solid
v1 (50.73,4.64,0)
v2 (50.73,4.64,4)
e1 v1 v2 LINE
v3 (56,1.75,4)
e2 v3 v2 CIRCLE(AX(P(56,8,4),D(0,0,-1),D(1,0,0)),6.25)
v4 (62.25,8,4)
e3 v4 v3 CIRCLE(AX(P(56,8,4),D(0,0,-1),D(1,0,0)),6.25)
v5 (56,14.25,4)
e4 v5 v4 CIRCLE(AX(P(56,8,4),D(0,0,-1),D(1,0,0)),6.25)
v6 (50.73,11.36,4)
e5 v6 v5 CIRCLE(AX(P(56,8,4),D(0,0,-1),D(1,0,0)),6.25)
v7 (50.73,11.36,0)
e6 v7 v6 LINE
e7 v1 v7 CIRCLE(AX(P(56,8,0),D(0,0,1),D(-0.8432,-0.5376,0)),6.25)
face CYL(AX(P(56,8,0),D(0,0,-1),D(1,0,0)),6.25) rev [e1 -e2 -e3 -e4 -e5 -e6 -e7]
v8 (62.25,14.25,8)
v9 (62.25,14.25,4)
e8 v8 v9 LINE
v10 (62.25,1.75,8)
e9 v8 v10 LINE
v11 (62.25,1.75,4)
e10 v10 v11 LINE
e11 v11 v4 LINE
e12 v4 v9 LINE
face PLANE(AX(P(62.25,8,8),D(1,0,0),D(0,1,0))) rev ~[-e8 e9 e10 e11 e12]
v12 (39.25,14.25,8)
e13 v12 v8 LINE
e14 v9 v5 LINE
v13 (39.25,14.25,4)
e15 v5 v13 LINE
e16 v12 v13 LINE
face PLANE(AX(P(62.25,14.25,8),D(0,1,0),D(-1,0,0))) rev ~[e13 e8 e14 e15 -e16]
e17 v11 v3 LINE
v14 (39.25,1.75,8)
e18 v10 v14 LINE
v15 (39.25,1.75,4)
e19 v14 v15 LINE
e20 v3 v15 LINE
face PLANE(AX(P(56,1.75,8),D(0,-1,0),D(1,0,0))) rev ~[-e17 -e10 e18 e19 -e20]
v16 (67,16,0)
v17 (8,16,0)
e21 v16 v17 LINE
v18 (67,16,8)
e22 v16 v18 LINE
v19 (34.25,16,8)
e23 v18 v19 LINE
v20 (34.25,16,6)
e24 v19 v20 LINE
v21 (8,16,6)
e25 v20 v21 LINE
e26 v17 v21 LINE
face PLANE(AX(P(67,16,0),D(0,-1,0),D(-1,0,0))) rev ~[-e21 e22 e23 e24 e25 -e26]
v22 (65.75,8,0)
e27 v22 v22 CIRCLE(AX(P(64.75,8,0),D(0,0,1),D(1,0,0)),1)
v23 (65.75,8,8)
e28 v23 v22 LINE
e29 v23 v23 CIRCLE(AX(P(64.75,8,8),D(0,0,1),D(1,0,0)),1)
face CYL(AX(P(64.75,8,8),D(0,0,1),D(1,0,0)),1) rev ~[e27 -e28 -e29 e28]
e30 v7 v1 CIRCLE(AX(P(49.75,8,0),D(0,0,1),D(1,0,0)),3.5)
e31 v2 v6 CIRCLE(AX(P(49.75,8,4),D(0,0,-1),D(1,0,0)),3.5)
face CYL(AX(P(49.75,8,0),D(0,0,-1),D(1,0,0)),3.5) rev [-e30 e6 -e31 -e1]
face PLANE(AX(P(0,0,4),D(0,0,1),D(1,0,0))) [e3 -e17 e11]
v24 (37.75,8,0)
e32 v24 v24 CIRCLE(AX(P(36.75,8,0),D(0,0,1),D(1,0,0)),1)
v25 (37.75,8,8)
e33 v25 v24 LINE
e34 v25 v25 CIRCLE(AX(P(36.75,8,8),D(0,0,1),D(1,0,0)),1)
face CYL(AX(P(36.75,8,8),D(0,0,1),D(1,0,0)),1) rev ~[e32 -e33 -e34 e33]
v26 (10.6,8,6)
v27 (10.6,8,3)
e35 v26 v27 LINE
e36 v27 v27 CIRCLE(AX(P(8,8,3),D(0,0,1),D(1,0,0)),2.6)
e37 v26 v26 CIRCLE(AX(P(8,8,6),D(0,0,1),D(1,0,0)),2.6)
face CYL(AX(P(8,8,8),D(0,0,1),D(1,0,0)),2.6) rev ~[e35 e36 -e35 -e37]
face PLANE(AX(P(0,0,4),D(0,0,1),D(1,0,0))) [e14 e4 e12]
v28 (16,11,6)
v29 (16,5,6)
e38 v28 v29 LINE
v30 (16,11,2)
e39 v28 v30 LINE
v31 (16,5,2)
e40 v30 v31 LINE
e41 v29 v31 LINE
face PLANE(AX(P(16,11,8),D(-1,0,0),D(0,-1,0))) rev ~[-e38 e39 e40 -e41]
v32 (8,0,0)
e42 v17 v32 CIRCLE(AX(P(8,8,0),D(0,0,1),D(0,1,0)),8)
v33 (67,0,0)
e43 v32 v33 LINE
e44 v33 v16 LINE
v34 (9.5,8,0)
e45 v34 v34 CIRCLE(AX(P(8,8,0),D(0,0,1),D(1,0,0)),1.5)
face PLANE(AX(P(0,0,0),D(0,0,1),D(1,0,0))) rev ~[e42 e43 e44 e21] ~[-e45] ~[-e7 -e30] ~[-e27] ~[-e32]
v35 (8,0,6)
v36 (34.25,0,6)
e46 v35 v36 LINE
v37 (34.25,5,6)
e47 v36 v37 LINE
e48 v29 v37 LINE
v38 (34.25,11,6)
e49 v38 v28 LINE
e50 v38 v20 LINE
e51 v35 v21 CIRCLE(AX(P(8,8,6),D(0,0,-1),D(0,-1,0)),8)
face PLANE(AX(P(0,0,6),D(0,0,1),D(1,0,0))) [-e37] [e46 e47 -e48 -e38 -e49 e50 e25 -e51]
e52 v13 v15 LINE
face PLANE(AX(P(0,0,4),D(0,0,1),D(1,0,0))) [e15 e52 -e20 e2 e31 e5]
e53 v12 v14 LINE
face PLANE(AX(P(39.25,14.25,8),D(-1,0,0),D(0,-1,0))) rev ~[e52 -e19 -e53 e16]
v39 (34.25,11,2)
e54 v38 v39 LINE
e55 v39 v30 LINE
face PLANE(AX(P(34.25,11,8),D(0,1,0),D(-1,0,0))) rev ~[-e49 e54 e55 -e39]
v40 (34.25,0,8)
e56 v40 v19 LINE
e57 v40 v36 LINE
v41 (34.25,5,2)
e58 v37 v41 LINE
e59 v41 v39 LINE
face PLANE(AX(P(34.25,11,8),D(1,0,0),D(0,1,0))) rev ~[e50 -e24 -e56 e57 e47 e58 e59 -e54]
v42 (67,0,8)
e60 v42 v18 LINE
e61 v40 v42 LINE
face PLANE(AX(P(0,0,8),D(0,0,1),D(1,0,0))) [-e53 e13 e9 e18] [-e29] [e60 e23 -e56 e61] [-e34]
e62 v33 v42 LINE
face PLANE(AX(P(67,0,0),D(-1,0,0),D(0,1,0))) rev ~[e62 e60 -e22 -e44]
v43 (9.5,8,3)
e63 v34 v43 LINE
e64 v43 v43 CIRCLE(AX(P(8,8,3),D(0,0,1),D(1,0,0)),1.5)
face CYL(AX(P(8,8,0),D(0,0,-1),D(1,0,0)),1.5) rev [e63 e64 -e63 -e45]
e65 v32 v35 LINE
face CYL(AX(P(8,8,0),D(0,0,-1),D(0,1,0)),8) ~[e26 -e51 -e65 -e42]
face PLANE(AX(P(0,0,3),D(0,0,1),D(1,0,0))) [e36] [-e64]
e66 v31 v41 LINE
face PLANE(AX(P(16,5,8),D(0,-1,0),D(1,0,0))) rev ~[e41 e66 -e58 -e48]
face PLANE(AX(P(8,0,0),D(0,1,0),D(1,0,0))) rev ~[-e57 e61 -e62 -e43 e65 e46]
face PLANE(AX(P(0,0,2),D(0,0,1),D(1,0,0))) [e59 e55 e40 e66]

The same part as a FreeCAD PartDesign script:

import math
import FreeCAD as App
import Part
import Sketcher

doc = App.newDocument("Part")
params = doc.addObject("Spreadsheet::Sheet", "Params")
for row, (alias, value) in enumerate([
    ("sketch1_diameter", "3 mm"),
    ("sketch1_radius", "8 mm"),
    ("sketch1_radius2", "3.5 mm"),
    ("sketch1_radius3", "6.25 mm"),
    ("pad1_length", "8 mm"),
    ("sketch2_width", "23 mm"),
    ("sketch2_height", "12.5 mm"),
    ("pocket1_length", "4 mm"),
    ("sketch3_diameter", "5.2 mm"),
    ("sketch3_height", "5 mm"),
    ("sketch3_width", "34.25 mm"),
    ("pocket2_length", "2 mm"),
    ("sketch4_diameter", "5.2 mm"),
    ("sketch4_diameter2", "3 mm"),
    ("pocket3_length", "5 mm"),
    ("sketch5_height", "6 mm"),
    ("sketch5_width", "18.25 mm"),
    ("pocket4_length", "6 mm"),
    ("sketch6_diameter", "2 mm"),
], start=1):
    params.set(f"A{row}", alias)
    params.set(f"B{row}", "=" + value)
    params.setAlias(f"B{row}", alias)

body = doc.addObject("PartDesign::Body", "Body")

sketch1 = doc.addObject("Sketcher::SketchObject", "Sketch")
body.addObject(sketch1)
sketch1.AttachmentSupport = (doc.XY_Plane, [""])
sketch1.MapMode = "FlatFace"
sketch1.addGeometry([
    Part.ArcOfCircle(Part.Circle(App.Vector(8, 8, 0), App.Vector(0, 0, 1), 8), math.radians(90), math.radians(270)),
    Part.LineSegment(App.Vector(8, 0, 0), App.Vector(67, 0, 0)),
    Part.LineSegment(App.Vector(67, 0, 0), App.Vector(67, 16, 0)),
    Part.LineSegment(App.Vector(67, 16, 0), App.Vector(8, 16, 0)),
    Part.Circle(App.Vector(8, 8, 0), App.Vector(0, 0, 1), 1.5),
    Part.ArcOfCircle(Part.Circle(App.Vector(56, 8, 0), App.Vector(0, 0, 1), 6.25), math.radians(-147.479591), math.radians(147.479591)),
    Part.ArcOfCircle(Part.Circle(App.Vector(49.75, 8, 0), App.Vector(0, 0, 1), 3.5), math.radians(73.739795), math.radians(286.260205)),
], False)
sketch1.addConstraint([
    Sketcher.Constraint("Tangent", 0, 2, 1, 1),
    Sketcher.Constraint("Coincident", 1, 2, 2, 1),
    Sketcher.Constraint("Coincident", 2, 2, 3, 1),
    Sketcher.Constraint("Tangent", 3, 2, 0, 1),
    Sketcher.Constraint("Coincident", 5, 1, 6, 2),
    Sketcher.Constraint("Coincident", 6, 1, 5, 2),
    Sketcher.Constraint("Horizontal", 1),
    Sketcher.Constraint("Vertical", 2),
    Sketcher.Constraint("Horizontal", 3),
    Sketcher.Constraint("Coincident", 4, 3, 0, 3),
    Sketcher.Constraint("PointOnObject", 0, 2, -1),
    Sketcher.Constraint("Horizontal", 4, 3, 5, 3),
    Sketcher.Constraint("Horizontal", 5, 3, 6, 3),
    Sketcher.Constraint("Diameter", 4, 3.0),
    Sketcher.Constraint("Radius", 0, 8.0),
    Sketcher.Constraint("Radius", 6, 3.5),
    Sketcher.Constraint("Radius", 5, 6.25),
    Sketcher.Constraint("DistanceX", -1, 1, 0, 3, 8.0),
    Sketcher.Constraint("DistanceX", 0, 3, 5, 3, 48.0),
    Sketcher.Constraint("DistanceX", 5, 3, 1, 2, 11.0),
    Sketcher.Constraint("DistanceX", -1, 1, 6, 3, 49.75),
])
sketch1.setExpression("Constraints[13]", "Params.sketch1_diameter")
sketch1.setExpression("Constraints[14]", "Params.sketch1_radius")
sketch1.setExpression("Constraints[15]", "Params.sketch1_radius2")
sketch1.setExpression("Constraints[16]", "Params.sketch1_radius3")
pad1 = doc.addObject("PartDesign::Pad", "Pad")
body.addObject(pad1)
pad1.Profile = sketch1
pad1.setExpression("Length", "Params.pad1_length")

sketch2 = doc.addObject("Sketcher::SketchObject", "Sketch001")
body.addObject(sketch2)
sketch2.AttachmentSupport = (doc.XY_Plane, [""])
sketch2.MapMode = "FlatFace"
sketch2.AttachmentOffset = App.Placement(App.Vector(0, 0, 8), App.Rotation())
sketch2.addGeometry([
    Part.LineSegment(App.Vector(62.25, 14.25, 0), App.Vector(39.25, 14.25, 0)),
    Part.LineSegment(App.Vector(39.25, 14.25, 0), App.Vector(39.25, 1.75, 0)),
    Part.LineSegment(App.Vector(39.25, 1.75, 0), App.Vector(62.25, 1.75, 0)),
    Part.LineSegment(App.Vector(62.25, 1.75, 0), App.Vector(62.25, 14.25, 0)),
], False)
sketch2.addConstraint([
    Sketcher.Constraint("Coincident", 0, 2, 1, 1),
    Sketcher.Constraint("Coincident", 1, 2, 2, 1),
    Sketcher.Constraint("Coincident", 2, 2, 3, 1),
    Sketcher.Constraint("Coincident", 3, 2, 0, 1),
    Sketcher.Constraint("Horizontal", 0),
    Sketcher.Constraint("Vertical", 1),
    Sketcher.Constraint("Horizontal", 2),
    Sketcher.Constraint("Vertical", 3),
    Sketcher.Constraint("DistanceX", 0, 2, 0, 1, 23.0),
    Sketcher.Constraint("DistanceY", 1, 2, 1, 1, 12.5),
    Sketcher.Constraint("DistanceY", -1, 1, 1, 2, 1.75),
    Sketcher.Constraint("DistanceX", -1, 1, 0, 2, 39.25),
])
sketch2.setExpression("Constraints[8]", "Params.sketch2_width")
sketch2.setExpression("Constraints[9]", "Params.sketch2_height")
pocket1 = doc.addObject("PartDesign::Pocket", "Pocket")
body.addObject(pocket1)
pocket1.Profile = sketch2
pocket1.setExpression("Length", "Params.pocket1_length")

sketch3 = doc.addObject("Sketcher::SketchObject", "Sketch002")
body.addObject(sketch3)
sketch3.AttachmentSupport = (doc.XY_Plane, [""])
sketch3.MapMode = "FlatFace"
sketch3.AttachmentOffset = App.Placement(App.Vector(0, 0, 8), App.Rotation())
sketch3.addGeometry([
    Part.LineSegment(App.Vector(34.25, 11, 0), App.Vector(34.25, 16, 0)),
    Part.LineSegment(App.Vector(34.25, 16, 0), App.Vector(0, 16, 0)),
    Part.LineSegment(App.Vector(0, 16, 0), App.Vector(0, 0, 0)),
    Part.LineSegment(App.Vector(0, 0, 0), App.Vector(34.25, 0, 0)),
    Part.LineSegment(App.Vector(34.25, 0, 0), App.Vector(34.25, 5, 0)),
    Part.LineSegment(App.Vector(34.25, 5, 0), App.Vector(16, 5, 0)),
    Part.LineSegment(App.Vector(16, 5, 0), App.Vector(16, 11, 0)),
    Part.LineSegment(App.Vector(16, 11, 0), App.Vector(34.25, 11, 0)),
    Part.Circle(App.Vector(8, 8, 0), App.Vector(0, 0, 1), 2.6),
], False)
sketch3.addConstraint([
    Sketcher.Constraint("Coincident", 0, 2, 1, 1),
    Sketcher.Constraint("Coincident", 1, 2, 2, 1),
    Sketcher.Constraint("Coincident", 2, 2, 3, 1),
    Sketcher.Constraint("Coincident", 3, 2, 4, 1),
    Sketcher.Constraint("Coincident", 4, 2, 5, 1),
    Sketcher.Constraint("Coincident", 5, 2, 6, 1),
    Sketcher.Constraint("Coincident", 6, 2, 7, 1),
    Sketcher.Constraint("Coincident", 7, 2, 0, 1),
    Sketcher.Constraint("Vertical", 0),
    Sketcher.Constraint("Horizontal", 1),
    Sketcher.Constraint("Vertical", 2),
    Sketcher.Constraint("Horizontal", 3),
    Sketcher.Constraint("Vertical", 4),
    Sketcher.Constraint("Horizontal", 5),
    Sketcher.Constraint("Vertical", 6),
    Sketcher.Constraint("Horizontal", 7),
    Sketcher.Constraint("Coincident", 2, 2, -1, 1),
    Sketcher.Constraint("Vertical", 0, 2, 3, 2),
    Sketcher.Constraint("Equal", 0, 4),
    Sketcher.Constraint("Diameter", 8, 5.2),
    Sketcher.Constraint("DistanceY", 0, 1, 0, 2, 5.0),
    Sketcher.Constraint("DistanceX", -1, 1, 8, 3, 8.0),
    Sketcher.Constraint("DistanceY", -1, 1, 8, 3, 8.0),
    Sketcher.Constraint("DistanceY", 8, 3, 0, 2, 8.0),
    Sketcher.Constraint("DistanceX", 8, 3, 5, 2, 8.0),
    Sketcher.Constraint("DistanceX", 1, 2, 1, 1, 34.25),
])
sketch3.setExpression("Constraints[19]", "Params.sketch3_diameter")
sketch3.setExpression("Constraints[20]", "Params.sketch3_height")
sketch3.setExpression("Constraints[25]", "Params.sketch3_width")
pocket2 = doc.addObject("PartDesign::Pocket", "Pocket001")
body.addObject(pocket2)
pocket2.Profile = sketch3
pocket2.setExpression("Length", "Params.pocket2_length")

sketch4 = doc.addObject("Sketcher::SketchObject", "Sketch003")
body.addObject(sketch4)
sketch4.AttachmentSupport = (doc.XY_Plane, [""])
sketch4.MapMode = "FlatFace"
sketch4.AttachmentOffset = App.Placement(App.Vector(0, 0, 8), App.Rotation())
sketch4.addGeometry([
    Part.Circle(App.Vector(8, 8, 0), App.Vector(0, 0, 1), 2.6),
    Part.Circle(App.Vector(8, 8, 0), App.Vector(0, 0, 1), 1.5),
], False)
sketch4.addConstraint([
    Sketcher.Constraint("Coincident", 1, 3, 0, 3),
    Sketcher.Constraint("Diameter", 0, 5.2),
    Sketcher.Constraint("Diameter", 1, 3.0),
    Sketcher.Constraint("DistanceX", -1, 1, 0, 3, 8.0),
    Sketcher.Constraint("DistanceY", -1, 1, 0, 3, 8.0),
])
sketch4.setExpression("Constraints[1]", "Params.sketch4_diameter")
sketch4.setExpression("Constraints[2]", "Params.sketch4_diameter2")
pocket3 = doc.addObject("PartDesign::Pocket", "Pocket002")
body.addObject(pocket3)
pocket3.Profile = sketch4
pocket3.setExpression("Length", "Params.pocket3_length")

sketch5 = doc.addObject("Sketcher::SketchObject", "Sketch004")
body.addObject(sketch5)
sketch5.AttachmentSupport = (doc.XY_Plane, [""])
sketch5.MapMode = "FlatFace"
sketch5.AttachmentOffset = App.Placement(App.Vector(0, 0, 8), App.Rotation())
sketch5.addGeometry([
    Part.LineSegment(App.Vector(34.25, 5, 0), App.Vector(34.25, 11, 0)),
    Part.LineSegment(App.Vector(34.25, 11, 0), App.Vector(16, 11, 0)),
    Part.LineSegment(App.Vector(16, 11, 0), App.Vector(16, 5, 0)),
    Part.LineSegment(App.Vector(16, 5, 0), App.Vector(34.25, 5, 0)),
], False)
sketch5.addConstraint([
    Sketcher.Constraint("Coincident", 0, 2, 1, 1),
    Sketcher.Constraint("Coincident", 1, 2, 2, 1),
    Sketcher.Constraint("Coincident", 2, 2, 3, 1),
    Sketcher.Constraint("Coincident", 3, 2, 0, 1),
    Sketcher.Constraint("Vertical", 0),
    Sketcher.Constraint("Horizontal", 1),
    Sketcher.Constraint("Vertical", 2),
    Sketcher.Constraint("Horizontal", 3),
    Sketcher.Constraint("DistanceY", -1, 1, 2, 2, 5.0),
    Sketcher.Constraint("DistanceY", 0, 1, 0, 2, 6.0),
    Sketcher.Constraint("DistanceX", -1, 1, 1, 2, 16.0),
    Sketcher.Constraint("DistanceX", 1, 2, 1, 1, 18.25),
])
sketch5.setExpression("Constraints[9]", "Params.sketch5_height")
sketch5.setExpression("Constraints[11]", "Params.sketch5_width")
pocket4 = doc.addObject("PartDesign::Pocket", "Pocket003")
body.addObject(pocket4)
pocket4.Profile = sketch5
pocket4.setExpression("Length", "Params.pocket4_length")

sketch6 = doc.addObject("Sketcher::SketchObject", "Sketch005")
body.addObject(sketch6)
sketch6.AttachmentSupport = (doc.XY_Plane, [""])
sketch6.MapMode = "FlatFace"
sketch6.AttachmentOffset = App.Placement(App.Vector(0, 0, 8), App.Rotation())
sketch6.addGeometry([
    Part.Circle(App.Vector(36.75, 8, 0), App.Vector(0, 0, 1), 1),
    Part.Circle(App.Vector(64.75, 8, 0), App.Vector(0, 0, 1), 1),
], False)
sketch6.addConstraint([
    Sketcher.Constraint("Equal", 0, 1),
    Sketcher.Constraint("Horizontal", 0, 3, 1, 3),
    Sketcher.Constraint("Diameter", 0, 2.0),
    Sketcher.Constraint("DistanceY", -1, 1, 0, 3, 8.0),
    Sketcher.Constraint("DistanceX", 0, 3, 1, 3, 28.0),
    Sketcher.Constraint("DistanceX", -1, 1, 0, 3, 36.75),
])
sketch6.setExpression("Constraints[2]", "Params.sketch6_diameter")
pocket5 = doc.addObject("PartDesign::Pocket", "Pocket004")
body.addObject(pocket5)
pocket5.Profile = sketch6
pocket5.Type = "ThroughAll"

doc.recompute()
